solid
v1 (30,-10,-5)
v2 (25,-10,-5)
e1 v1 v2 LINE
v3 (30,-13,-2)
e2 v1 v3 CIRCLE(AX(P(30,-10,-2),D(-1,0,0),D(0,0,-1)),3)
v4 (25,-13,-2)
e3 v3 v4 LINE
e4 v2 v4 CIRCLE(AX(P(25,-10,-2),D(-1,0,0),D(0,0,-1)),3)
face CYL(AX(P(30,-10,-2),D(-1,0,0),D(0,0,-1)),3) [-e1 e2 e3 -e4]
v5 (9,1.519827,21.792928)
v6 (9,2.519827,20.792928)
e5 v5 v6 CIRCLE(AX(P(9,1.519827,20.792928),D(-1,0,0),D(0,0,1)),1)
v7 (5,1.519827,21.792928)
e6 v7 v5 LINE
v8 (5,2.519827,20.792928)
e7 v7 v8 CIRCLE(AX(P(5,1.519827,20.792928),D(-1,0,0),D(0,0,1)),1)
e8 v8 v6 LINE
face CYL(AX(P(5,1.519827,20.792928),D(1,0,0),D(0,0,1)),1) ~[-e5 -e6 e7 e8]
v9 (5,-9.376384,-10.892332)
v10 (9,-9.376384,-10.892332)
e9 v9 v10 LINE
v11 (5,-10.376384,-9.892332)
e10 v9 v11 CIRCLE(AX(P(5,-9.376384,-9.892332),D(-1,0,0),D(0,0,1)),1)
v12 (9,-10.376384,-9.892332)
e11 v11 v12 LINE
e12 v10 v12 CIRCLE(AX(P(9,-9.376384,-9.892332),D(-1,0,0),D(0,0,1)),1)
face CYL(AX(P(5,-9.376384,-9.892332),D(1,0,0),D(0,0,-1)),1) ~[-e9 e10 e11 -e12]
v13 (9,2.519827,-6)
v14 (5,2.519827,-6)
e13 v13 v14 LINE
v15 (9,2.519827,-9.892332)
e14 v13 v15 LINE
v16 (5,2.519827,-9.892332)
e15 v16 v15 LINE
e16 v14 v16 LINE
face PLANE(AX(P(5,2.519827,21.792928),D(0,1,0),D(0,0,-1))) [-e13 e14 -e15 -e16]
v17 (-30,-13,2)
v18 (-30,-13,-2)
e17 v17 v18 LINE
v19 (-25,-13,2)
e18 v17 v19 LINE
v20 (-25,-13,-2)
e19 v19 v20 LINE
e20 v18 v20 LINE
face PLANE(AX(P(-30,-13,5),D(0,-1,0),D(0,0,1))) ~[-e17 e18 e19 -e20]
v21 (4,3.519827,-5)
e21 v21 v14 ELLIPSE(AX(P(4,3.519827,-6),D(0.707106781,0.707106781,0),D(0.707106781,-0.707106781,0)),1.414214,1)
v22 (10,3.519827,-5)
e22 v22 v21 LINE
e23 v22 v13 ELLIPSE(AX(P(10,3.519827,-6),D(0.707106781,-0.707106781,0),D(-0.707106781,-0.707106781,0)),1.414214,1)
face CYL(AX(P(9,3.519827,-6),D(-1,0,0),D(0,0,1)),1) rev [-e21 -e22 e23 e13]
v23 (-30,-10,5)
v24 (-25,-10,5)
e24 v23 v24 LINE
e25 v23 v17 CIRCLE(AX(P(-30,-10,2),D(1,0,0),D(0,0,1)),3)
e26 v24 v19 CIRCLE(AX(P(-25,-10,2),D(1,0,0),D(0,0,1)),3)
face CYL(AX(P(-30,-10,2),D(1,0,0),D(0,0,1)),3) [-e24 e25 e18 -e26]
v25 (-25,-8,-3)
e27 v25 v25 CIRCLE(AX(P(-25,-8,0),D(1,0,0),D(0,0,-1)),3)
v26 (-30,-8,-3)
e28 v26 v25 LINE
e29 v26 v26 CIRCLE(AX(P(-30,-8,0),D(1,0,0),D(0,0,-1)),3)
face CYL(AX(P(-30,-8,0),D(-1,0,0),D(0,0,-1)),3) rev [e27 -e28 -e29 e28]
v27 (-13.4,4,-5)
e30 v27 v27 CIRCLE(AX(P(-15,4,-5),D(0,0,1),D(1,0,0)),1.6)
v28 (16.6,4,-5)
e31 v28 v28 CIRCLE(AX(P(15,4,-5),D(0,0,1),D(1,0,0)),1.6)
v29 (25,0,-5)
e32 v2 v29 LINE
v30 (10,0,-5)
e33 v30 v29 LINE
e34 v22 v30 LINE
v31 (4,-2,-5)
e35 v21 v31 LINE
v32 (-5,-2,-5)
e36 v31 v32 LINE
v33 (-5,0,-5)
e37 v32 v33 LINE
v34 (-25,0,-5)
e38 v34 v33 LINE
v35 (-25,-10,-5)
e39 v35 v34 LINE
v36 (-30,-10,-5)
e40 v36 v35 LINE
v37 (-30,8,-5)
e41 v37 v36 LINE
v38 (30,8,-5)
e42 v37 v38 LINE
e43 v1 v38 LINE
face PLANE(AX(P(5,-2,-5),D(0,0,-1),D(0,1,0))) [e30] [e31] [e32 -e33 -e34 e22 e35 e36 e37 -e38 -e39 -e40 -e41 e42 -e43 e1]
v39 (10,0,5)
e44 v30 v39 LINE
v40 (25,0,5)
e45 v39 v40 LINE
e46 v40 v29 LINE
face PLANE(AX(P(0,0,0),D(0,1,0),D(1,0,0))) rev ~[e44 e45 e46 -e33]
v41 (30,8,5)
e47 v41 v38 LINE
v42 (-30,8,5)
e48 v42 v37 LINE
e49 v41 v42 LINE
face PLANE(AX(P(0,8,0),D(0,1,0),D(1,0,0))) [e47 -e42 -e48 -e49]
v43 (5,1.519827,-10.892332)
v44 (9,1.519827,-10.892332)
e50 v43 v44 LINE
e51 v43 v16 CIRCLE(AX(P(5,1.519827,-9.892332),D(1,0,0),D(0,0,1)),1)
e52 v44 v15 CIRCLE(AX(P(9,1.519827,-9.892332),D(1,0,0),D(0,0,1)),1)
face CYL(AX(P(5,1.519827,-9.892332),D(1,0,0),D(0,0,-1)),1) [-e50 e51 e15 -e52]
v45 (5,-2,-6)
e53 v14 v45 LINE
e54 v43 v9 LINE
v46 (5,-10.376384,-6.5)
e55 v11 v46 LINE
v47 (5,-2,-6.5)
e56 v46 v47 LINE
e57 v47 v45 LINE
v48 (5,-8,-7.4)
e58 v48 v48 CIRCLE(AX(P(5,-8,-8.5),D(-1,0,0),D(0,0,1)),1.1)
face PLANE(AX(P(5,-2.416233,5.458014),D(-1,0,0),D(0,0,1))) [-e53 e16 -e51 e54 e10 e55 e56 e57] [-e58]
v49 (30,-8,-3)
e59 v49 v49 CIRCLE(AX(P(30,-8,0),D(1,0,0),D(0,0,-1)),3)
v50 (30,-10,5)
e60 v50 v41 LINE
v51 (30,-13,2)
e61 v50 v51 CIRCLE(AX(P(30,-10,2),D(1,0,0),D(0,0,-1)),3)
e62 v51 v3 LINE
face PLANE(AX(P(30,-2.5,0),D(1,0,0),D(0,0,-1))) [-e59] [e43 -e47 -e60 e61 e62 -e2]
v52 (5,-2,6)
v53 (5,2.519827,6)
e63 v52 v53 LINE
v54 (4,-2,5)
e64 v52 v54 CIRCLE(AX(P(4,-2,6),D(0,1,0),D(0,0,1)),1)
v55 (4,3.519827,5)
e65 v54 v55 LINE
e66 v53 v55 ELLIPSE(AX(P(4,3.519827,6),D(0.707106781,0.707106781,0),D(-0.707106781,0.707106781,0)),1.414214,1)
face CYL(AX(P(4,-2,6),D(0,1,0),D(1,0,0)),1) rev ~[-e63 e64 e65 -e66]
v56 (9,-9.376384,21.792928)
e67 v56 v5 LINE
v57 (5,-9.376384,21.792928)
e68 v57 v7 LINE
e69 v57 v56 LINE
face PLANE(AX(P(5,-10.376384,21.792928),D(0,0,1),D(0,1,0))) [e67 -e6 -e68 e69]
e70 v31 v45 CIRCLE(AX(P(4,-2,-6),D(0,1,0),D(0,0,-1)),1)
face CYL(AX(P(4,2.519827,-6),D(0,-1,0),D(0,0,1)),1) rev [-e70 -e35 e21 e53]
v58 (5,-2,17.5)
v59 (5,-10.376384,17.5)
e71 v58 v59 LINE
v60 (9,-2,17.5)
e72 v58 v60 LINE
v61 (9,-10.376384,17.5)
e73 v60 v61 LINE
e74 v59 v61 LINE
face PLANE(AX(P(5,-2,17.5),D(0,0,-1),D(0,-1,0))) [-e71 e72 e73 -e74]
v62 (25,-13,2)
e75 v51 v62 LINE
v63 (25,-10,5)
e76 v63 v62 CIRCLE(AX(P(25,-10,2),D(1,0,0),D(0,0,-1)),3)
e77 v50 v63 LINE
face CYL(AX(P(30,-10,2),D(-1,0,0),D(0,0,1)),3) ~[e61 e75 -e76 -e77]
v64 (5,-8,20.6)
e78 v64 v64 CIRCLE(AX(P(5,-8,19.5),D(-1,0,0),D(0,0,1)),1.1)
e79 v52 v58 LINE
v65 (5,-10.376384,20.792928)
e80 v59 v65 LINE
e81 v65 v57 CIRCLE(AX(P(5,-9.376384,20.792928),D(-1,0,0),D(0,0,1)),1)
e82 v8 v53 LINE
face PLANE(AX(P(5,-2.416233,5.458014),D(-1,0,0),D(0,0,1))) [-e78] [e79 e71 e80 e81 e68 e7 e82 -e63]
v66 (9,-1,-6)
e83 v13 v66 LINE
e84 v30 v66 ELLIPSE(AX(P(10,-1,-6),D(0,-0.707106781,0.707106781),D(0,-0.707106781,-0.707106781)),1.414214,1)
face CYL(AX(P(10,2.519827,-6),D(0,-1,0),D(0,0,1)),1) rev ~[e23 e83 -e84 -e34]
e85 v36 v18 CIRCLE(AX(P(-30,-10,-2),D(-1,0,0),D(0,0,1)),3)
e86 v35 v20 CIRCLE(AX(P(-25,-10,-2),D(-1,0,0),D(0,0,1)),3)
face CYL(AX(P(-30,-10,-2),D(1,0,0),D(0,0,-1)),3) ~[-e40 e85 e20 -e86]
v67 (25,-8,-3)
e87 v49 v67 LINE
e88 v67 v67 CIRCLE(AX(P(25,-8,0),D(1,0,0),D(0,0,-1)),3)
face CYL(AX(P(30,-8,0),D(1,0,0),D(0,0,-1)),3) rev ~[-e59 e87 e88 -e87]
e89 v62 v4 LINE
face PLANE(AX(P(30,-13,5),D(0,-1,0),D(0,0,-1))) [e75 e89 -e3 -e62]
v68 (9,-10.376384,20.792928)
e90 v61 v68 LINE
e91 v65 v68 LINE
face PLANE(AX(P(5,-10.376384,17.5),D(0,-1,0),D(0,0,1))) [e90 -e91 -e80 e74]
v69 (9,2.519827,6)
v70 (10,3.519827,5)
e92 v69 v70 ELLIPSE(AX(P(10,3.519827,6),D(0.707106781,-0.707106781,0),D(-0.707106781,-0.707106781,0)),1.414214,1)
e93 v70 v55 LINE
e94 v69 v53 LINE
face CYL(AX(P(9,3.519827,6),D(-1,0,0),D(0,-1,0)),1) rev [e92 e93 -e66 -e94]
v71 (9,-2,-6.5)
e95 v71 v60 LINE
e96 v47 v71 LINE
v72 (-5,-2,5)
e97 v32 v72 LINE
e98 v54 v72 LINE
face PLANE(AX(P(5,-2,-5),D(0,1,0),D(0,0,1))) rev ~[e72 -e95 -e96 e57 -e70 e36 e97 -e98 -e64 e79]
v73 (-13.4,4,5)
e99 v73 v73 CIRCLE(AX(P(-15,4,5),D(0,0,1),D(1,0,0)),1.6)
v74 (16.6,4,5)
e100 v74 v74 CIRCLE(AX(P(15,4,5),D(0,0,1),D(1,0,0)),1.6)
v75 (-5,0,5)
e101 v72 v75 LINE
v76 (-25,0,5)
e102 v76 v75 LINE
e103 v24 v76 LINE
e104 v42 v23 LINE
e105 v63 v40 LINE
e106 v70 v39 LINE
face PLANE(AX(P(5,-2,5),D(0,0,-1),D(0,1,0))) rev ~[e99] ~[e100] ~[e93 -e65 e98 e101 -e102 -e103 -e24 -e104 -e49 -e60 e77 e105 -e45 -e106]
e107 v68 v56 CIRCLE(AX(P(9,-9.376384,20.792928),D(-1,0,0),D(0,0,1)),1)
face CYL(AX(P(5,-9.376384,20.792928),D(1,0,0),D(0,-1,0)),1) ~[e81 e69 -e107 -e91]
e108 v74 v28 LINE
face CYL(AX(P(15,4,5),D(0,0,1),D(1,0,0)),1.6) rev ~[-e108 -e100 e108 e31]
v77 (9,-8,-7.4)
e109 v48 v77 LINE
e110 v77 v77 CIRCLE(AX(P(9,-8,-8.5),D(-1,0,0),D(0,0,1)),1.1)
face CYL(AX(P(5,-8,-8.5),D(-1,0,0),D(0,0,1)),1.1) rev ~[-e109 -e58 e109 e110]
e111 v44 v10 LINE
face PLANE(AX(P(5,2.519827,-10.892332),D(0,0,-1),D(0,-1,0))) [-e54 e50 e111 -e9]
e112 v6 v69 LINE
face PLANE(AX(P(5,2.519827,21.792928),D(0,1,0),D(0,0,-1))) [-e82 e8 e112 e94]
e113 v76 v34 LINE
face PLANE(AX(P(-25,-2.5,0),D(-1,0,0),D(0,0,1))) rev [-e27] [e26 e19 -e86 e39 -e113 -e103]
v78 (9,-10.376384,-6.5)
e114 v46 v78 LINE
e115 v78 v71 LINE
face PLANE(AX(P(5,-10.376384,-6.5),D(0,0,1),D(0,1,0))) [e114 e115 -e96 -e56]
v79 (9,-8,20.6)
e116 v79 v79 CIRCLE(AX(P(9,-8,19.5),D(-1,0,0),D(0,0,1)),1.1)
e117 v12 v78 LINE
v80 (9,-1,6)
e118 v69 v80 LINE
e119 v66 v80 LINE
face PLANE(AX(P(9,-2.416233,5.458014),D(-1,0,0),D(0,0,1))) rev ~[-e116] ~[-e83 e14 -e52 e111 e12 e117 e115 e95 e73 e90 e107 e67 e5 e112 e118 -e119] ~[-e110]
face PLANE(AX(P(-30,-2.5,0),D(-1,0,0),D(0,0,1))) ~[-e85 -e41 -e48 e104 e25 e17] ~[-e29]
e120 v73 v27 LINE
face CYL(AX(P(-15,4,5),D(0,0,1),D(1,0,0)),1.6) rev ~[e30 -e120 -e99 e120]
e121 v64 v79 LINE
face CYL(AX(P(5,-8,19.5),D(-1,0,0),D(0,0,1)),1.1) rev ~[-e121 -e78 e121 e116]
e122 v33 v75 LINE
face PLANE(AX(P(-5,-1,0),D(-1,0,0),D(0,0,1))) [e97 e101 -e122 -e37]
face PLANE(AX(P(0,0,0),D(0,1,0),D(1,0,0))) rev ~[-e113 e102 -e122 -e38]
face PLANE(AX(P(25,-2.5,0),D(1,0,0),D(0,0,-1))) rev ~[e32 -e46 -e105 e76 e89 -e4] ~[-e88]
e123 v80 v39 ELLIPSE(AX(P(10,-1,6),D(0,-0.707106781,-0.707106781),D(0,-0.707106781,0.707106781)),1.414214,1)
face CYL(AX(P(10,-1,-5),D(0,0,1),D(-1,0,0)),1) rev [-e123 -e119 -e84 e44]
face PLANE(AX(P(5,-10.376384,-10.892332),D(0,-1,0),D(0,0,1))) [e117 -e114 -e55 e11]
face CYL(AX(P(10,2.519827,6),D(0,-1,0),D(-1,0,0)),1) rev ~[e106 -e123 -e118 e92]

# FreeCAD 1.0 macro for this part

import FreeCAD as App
import Part
import Sketcher
Q = App.Units.Quantity


def edges_at(feature, points):
    """Names of the edges that pass closest to the given points."""
    edges = feature.Shape.Edges
    near = lambda p: min(range(len(edges)), key=lambda i: edges[i].distToShape(Part.Vertex(*p))[0])
    return sorted({f"Edge{near(p) + 1}" for p in points})


def add_polygon(sketch, points):
    """Adds a closed chain of lines whose ends are joined by coincident constraints."""
    first, n = sketch.GeometryCount, len(points)
    for a, b in zip(points, points[1:] + points[:1]):
        sketch.addGeometry(Part.LineSegment(App.Vector(*a, 0), App.Vector(*b, 0)), False)
    for i in range(n):
        sketch.addConstraint(Sketcher.Constraint("Coincident", first + i, 2, first + (i + 1) % n, 1))

doc = App.newDocument("Part")
body = doc.addObject("PartDesign::Body", "Body")

sketch1 = body.newObject("Sketcher::SketchObject", "Sketch")
sketch1.AttachmentSupport = (doc.getObject("XZ_Plane"), [""])
sketch1.MapMode = "FlatFace"
add_polygon(sketch1, [(-30, -5), (-30, 5), (30, 5), (30, -5)])
sketch1.addConstraint([
    Sketcher.Constraint("Vertical", 0),
    Sketcher.Constraint("Horizontal", 1),
    Sketcher.Constraint("Vertical", 2),
    Sketcher.Constraint("Horizontal", 3),
    Sketcher.Constraint("Symmetric", 0, 2, 2, 2, -1, 1),
    Sketcher.Constraint("DistanceX", 1, 1, 1, 2, Q("60 mm")),
    Sketcher.Constraint("DistanceY", 0, 1, 0, 2, Q("10 mm")),
])
pad1 = body.newObject("PartDesign::Pad", "Pad")
pad1.Profile = sketch1
pad1.Length = 8
pad1.Reversed = True

sketch2 = body.newObject("Sketcher::SketchObject", "Sketch001")
sketch2.AttachmentSupport = (doc.getObject("YZ_Plane"), [""])
sketch2.MapMode = "FlatFace"
sketch2.AttachmentOffset = App.Placement(App.Vector(0, 0, 30), App.Rotation())
add_polygon(sketch2, [(8, 5), (-13, 5), (-13, -5), (8, -5)])
sketch2.addGeometry(Part.Circle(App.Vector(-8, 0, 0), App.Vector(0, 0, 1), 3), False)
sketch2.addConstraint([
    Sketcher.Constraint("Horizontal", 0),
    Sketcher.Constraint("Vertical", 1),
    Sketcher.Constraint("Horizontal", 2),
    Sketcher.Constraint("Vertical", 3),
    Sketcher.Constraint("PointOnObject", 4, 3, -1),
    Sketcher.Constraint("Diameter", 4, Q("6 mm")),
    Sketcher.Constraint("DistanceX", 0, 2, 0, 1, Q("21 mm")),
    Sketcher.Constraint("DistanceY", 1, 2, 1, 1, Q("10 mm")),
    Sketcher.Constraint("DistanceX", 4, 3, -1, 1, Q("8 mm")),
    Sketcher.Constraint("DistanceX", 0, 2, -1, 1, Q("13 mm")),
    Sketcher.Constraint("DistanceY", -1, 1, 0, 2, Q("5 mm")),
])
pad2 = body.newObject("PartDesign::Pad", "Pad001")
pad2.Profile = sketch2
pad2.Length = 5
pad2.Reversed = True
doc.recompute()

mirrored = body.newObject("PartDesign::Mirrored", "Mirrored")
mirrored.Originals = [pad2]
mirrored.MirrorPlane = (doc.getObject("YZ_Plane"), [""])
body.Tip = mirrored
doc.recompute()

fillet = body.newObject("PartDesign::Fillet", "Fillet")
fillet.Base = (mirrored, edges_at(mirrored, [
    (27.5, -13, 5),
    (27.5, -13, -5),
    (-27.5, -13, -5),
    (-27.5, -13, 5),
]))
fillet.Radius = 3

sketch3 = body.newObject("Sketcher::SketchObject", "Sketch002")
sketch3.AttachmentSupport = (doc.getObject("YZ_Plane"), [""])
sketch3.MapMode = "FlatFace"
sketch3.AttachmentOffset = App.Placement(App.Vector(0, 0, 5), App.Rotation())
add_polygon(sketch3, [(-2, -6.5), (-2, 17.5), (-10.4, 17.5), (-10.4, 21.8), (2.5, 21.8), (2.5, -10.9), (-10.4, -10.9), (-10.4, -6.5)])
sketch3.addGeometry(Part.Circle(App.Vector(-8, -8.5, 0), App.Vector(0, 0, 1), 1.1), False)
sketch3.addGeometry(Part.Circle(App.Vector(-8, 19.5, 0), App.Vector(0, 0, 1), 1.1), False)
sketch3.addConstraint([
    Sketcher.Constraint("Vertical", 0),
    Sketcher.Constraint("Horizontal", 1),
    Sketcher.Constraint("Vertical", 2),
    Sketcher.Constraint("Horizontal", 3),
    Sketcher.Constraint("Vertical", 4),
    Sketcher.Constraint("Horizontal", 5),
    Sketcher.Constraint("Vertical", 6),
    Sketcher.Constraint("Horizontal", 7),
    Sketcher.Constraint("Equal", 8, 9),
    Sketcher.Constraint("Vertical", 8, 3, 9, 3),
    Sketcher.Constraint("Vertical", 2, 2, 5, 2),
    Sketcher.Constraint("Diameter", 8, Q("2.2 mm")),
    Sketcher.Constraint("DistanceY", 0, 1, 0, 2, Q("24 mm")),
    Sketcher.Constraint("DistanceX", 8, 3, -1, 1, Q("8 mm")),
    Sketcher.Constraint("DistanceX", 0, 2, -1, 1, Q("2 mm")),
    Sketcher.Constraint("DistanceY", 8, 3, 9, 3, Q("28 mm")),
    Sketcher.Constraint("DistanceY", 0, 2, 9, 3, Q("2 mm")),
    Sketcher.Constraint("DistanceY", 8, 3, -1, 1, Q("8.5 mm")),
    Sketcher.Constraint("DistanceX", 3, 1, 3, 2, Q("12.896211 mm")),
    Sketcher.Constraint("DistanceY", 2, 1, 2, 2, Q("4.292928 mm")),
    Sketcher.Constraint("DistanceY", 4, 2, 4, 1, Q("32.68526 mm")),
    Sketcher.Constraint("DistanceX", 1, 2, 1, 1, Q("8.376384 mm")),
])
pad3 = body.newObject("PartDesign::Pad", "Pad002")
pad3.Profile = sketch3
pad3.Length = 4

sketch4 = body.newObject("Sketcher::SketchObject", "Sketch003")
sketch4.AttachmentSupport = (doc.getObject("YZ_Plane"), [""])
sketch4.MapMode = "FlatFace"
sketch4.AttachmentOffset = App.Placement(App.Vector(0, 0, 5), App.Rotation())
add_polygon(sketch4, [(0, -5), (-2, -5), (-2, 5), (0, 5)])
sketch4.addConstraint([
    Sketcher.Constraint("Horizontal", 0),
    Sketcher.Constraint("Vertical", 1),
    Sketcher.Constraint("Horizontal", 2),
    Sketcher.Constraint("Vertical", 3),
    Sketcher.Constraint("Symmetric", 2, 2, 3, 2, -1, 1),
    Sketcher.Constraint("DistanceX", 0, 2, 0, 1, Q("2 mm")),
    Sketcher.Constraint("DistanceY", 1, 1, 1, 2, Q("10 mm")),
])
pad4 = body.newObject("PartDesign::Pad", "Pad003")
pad4.Profile = sketch4
pad4.Length = 10
pad4.Reversed = True
doc.recompute()

fillet2 = body.newObject("PartDesign::Fillet", "Fillet001")
fillet2.Base = (pad4, edges_at(pad4, [
    (5, 0.26, -5),
    (7, 2.52, -5),
    (9, 1.26, -5),
    (7, 2.52, -10.892),
    (5, 0.26, 5),
    (7, -10.376, -10.892),
    (7, 2.52, 5),
    (7, 2.52, 21.793),
    (7, -10.376, 21.793),
    (9, 1.26, 5),
    (9, 0, 0),
]))
fillet2.Radius = 1

sketch5 = body.newObject("Sketcher::SketchObject", "Sketch004")
sketch5.AttachmentSupport = (doc.getObject("XY_Plane"), [""])
sketch5.MapMode = "FlatFace"
sketch5.AttachmentOffset = App.Placement(App.Vector(0, 0, 5), App.Rotation())
sketch5.addGeometry([
    Part.Circle(App.Vector(-15, 4, 0), App.Vector(0, 0, 1), 1.6),
    Part.Circle(App.Vector(15, 4, 0), App.Vector(0, 0, 1), 1.6),
], False)
sketch5.addConstraint([
    Sketcher.Constraint("Equal", 0, 1),
    Sketcher.Constraint("Symmetric", 0, 3, 1, 3, -2),
    Sketcher.Constraint("Diameter", 0, Q("3.2 mm")),
    Sketcher.Constraint("DistanceX", 0, 3, -1, 1, Q("15 mm")),
    Sketcher.Constraint("DistanceY", -1, 1, 0, 3, Q("4 mm")),
])
pocket1 = body.newObject("PartDesign::Pocket", "Pocket")
pocket1.Profile = sketch5
pocket1.Type = "ThroughAll"
pocket1.Midplane = True

doc.recompute()
